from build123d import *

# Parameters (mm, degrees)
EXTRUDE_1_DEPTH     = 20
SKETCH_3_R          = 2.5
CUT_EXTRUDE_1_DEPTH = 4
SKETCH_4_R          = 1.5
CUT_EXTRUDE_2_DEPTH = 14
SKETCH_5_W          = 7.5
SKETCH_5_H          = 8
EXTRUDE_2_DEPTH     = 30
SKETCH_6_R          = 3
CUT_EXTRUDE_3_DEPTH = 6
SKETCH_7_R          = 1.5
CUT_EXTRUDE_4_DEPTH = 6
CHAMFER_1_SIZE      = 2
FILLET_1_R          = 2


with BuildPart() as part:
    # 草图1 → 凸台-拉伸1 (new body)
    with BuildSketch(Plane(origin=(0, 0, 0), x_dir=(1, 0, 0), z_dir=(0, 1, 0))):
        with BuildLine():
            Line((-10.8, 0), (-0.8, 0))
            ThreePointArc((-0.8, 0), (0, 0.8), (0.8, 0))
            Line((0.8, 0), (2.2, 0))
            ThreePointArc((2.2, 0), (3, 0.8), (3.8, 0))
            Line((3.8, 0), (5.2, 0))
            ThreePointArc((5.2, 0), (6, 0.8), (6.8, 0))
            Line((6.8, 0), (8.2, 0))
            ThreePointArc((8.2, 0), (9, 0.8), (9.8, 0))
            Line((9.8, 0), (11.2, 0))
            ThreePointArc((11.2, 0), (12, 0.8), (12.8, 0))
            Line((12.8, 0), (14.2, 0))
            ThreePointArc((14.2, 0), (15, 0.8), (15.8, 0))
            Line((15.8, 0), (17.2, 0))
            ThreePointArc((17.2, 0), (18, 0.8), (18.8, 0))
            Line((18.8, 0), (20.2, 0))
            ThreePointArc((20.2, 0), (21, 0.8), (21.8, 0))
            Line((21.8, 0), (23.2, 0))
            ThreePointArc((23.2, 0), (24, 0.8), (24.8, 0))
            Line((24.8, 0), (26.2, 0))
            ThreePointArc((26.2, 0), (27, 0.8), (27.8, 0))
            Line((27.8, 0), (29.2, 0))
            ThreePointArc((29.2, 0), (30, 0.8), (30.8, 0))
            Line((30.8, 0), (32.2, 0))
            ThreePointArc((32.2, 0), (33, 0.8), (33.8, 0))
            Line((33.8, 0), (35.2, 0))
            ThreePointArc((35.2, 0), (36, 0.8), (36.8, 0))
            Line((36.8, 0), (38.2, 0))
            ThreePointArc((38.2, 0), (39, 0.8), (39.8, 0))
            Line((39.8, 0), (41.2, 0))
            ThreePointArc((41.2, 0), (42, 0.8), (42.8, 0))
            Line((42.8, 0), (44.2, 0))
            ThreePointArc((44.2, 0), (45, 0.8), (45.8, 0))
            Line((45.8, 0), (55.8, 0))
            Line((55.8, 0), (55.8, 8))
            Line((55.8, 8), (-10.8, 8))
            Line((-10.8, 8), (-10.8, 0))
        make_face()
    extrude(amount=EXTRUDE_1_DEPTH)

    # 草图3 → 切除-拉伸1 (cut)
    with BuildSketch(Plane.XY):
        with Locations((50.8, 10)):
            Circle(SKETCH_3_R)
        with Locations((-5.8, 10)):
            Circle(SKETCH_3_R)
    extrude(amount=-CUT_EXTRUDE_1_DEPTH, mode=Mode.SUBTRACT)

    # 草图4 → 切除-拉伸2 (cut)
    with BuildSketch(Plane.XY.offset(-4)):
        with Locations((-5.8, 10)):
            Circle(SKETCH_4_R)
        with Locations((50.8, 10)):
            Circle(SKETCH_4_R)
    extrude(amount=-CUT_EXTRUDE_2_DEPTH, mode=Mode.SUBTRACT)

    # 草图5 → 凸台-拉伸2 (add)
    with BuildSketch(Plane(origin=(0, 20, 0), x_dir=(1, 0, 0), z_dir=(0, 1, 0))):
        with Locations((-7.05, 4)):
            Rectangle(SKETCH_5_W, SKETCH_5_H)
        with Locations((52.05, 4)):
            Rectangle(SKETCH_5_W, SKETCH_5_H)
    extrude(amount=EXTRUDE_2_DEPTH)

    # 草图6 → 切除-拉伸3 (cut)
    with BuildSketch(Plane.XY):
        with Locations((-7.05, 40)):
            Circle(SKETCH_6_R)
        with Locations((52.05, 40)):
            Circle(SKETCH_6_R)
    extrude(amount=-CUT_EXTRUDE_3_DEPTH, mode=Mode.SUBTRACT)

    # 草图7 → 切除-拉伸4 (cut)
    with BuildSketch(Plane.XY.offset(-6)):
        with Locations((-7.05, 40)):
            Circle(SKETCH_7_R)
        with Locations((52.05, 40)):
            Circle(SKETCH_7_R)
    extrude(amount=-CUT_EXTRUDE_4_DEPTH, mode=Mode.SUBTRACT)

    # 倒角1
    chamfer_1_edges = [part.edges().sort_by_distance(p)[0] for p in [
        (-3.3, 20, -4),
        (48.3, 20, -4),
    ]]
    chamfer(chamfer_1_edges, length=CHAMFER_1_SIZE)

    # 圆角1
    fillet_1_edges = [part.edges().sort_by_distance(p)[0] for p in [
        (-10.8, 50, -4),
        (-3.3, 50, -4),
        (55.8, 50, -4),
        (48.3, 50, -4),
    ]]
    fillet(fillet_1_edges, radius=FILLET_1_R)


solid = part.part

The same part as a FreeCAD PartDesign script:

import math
import FreeCAD as App
import Part
import Sketcher

V = App.Vector


def edges_at(feature, points):
    """Names of the edges that pass closest to the given points."""
    edges = feature.Shape.Edges
    near = lambda p: min(range(len(edges)), key=lambda i: edges[i].distToShape(Part.Vertex(*p))[0])
    return sorted({f"Edge{near(p) + 1}" for p in points})

doc = App.newDocument("Part")
body = doc.addObject("PartDesign::Body", "Body")

sketch1 = body.newObject("Sketcher::SketchObject", "Sketch")
sketch1.AttachmentSupport = (doc.getObject("XZ_Plane"), [""])
sketch1.MapMode = "FlatFace"
sketch1.addGeometry(Part.LineSegment(V(-10.8, 0, 0), V(-0.8, 0, 0)), False)
sketch1.addGeometry(Part.ArcOfCircle(Part.Circle(V(0, 0, 0), V(0, 0, 1), 0.8), math.radians(180), math.radians(360)), False)
sketch1.addGeometry(Part.LineSegment(V(0.8, 0, 0), V(2.2, 0, 0)), False)
sketch1.addGeometry(Part.ArcOfCircle(Part.Circle(V(3, 0, 0), V(0, 0, 1), 0.8), math.radians(180), math.radians(360)), False)
sketch1.addGeometry(Part.LineSegment(V(3.8, 0, 0), V(5.2, 0, 0)), False)
sketch1.addGeometry(Part.ArcOfCircle(Part.Circle(V(6, 0, 0), V(0, 0, 1), 0.8), math.radians(180), math.radians(360)), False)
sketch1.addGeometry(Part.LineSegment(V(6.8, 0, 0), V(8.2, 0, 0)), False)
sketch1.addGeometry(Part.ArcOfCircle(Part.Circle(V(9, 0, 0), V(0, 0, 1), 0.8), math.radians(180), math.radians(360)), False)
sketch1.addGeometry(Part.LineSegment(V(9.8, 0, 0), V(11.2, 0, 0)), False)
sketch1.addGeometry(Part.ArcOfCircle(Part.Circle(V(12, 0, 0), V(0, 0, 1), 0.8), math.radians(180), math.radians(360)), False)
sketch1.addGeometry(Part.LineSegment(V(12.8, 0, 0), V(14.2, 0, 0)), False)
sketch1.addGeometry(Part.ArcOfCircle(Part.Circle(V(15, 0, 0), V(0, 0, 1), 0.8), math.radians(180), math.radians(360)), False)
sketch1.addGeometry(Part.LineSegment(V(15.8, 0, 0), V(17.2, 0, 0)), False)
sketch1.addGeometry(Part.ArcOfCircle(Part.Circle(V(18, 0, 0), V(0, 0, 1), 0.8), math.radians(180), math.radians(360)), False)
sketch1.addGeometry(Part.LineSegment(V(18.8, 0, 0), V(20.2, 0, 0)), False)
sketch1.addGeometry(Part.ArcOfCircle(Part.Circle(V(21, 0, 0), V(0, 0, 1), 0.8), math.radians(180), math.radians(360)), False)
sketch1.addGeometry(Part.LineSegment(V(21.8, 0, 0), V(23.2, 0, 0)), False)
sketch1.addGeometry(Part.ArcOfCircle(Part.Circle(V(24, 0, 0), V(0, 0, 1), 0.8), math.radians(180), math.radians(360)), False)
sketch1.addGeometry(Part.LineSegment(V(24.8, 0, 0), V(26.2, 0, 0)), False)
sketch1.addGeometry(Part.ArcOfCircle(Part.Circle(V(27, 0, 0), V(0, 0, 1), 0.8), math.radians(180), math.radians(360)), False)
sketch1.addGeometry(Part.LineSegment(V(27.8, 0, 0), V(29.2, 0, 0)), False)
sketch1.addGeometry(Part.ArcOfCircle(Part.Circle(V(30, 0, 0), V(0, 0, 1), 0.8), math.radians(180), math.radians(360)), False)
sketch1.addGeometry(Part.LineSegment(V(30.8, 0, 0), V(32.2, 0, 0)), False)
sketch1.addGeometry(Part.ArcOfCircle(Part.Circle(V(33, 0, 0), V(0, 0, 1), 0.8), math.radians(180), math.radians(360)), False)
sketch1.addGeometry(Part.LineSegment(V(33.8, 0, 0), V(35.2, 0, 0)), False)
sketch1.addGeometry(Part.ArcOfCircle(Part.Circle(V(36, 0, 0), V(0, 0, 1), 0.8), math.radians(180), math.radians(360)), False)
sketch1.addGeometry(Part.LineSegment(V(36.8, 0, 0), V(38.2, 0, 0)), False)
sketch1.addGeometry(Part.ArcOfCircle(Part.Circle(V(39, 0, 0), V(0, 0, 1), 0.8), math.radians(180), math.radians(360)), False)
sketch1.addGeometry(Part.LineSegment(V(39.8, 0, 0), V(41.2, 0, 0)), False)
sketch1.addGeometry(Part.ArcOfCircle(Part.Circle(V(42, 0, 0), V(0, 0, 1), 0.8), math.radians(180), math.radians(360)), False)
sketch1.addGeometry(Part.LineSegment(V(42.8, 0, 0), V(44.2, 0, 0)), False)
sketch1.addGeometry(Part.ArcOfCircle(Part.Circle(V(45, 0, 0), V(0, 0, 1), 0.8), math.radians(180), math.radians(360)), False)
sketch1.addGeometry(Part.LineSegment(V(45.8, 0, 0), V(55.8, 0, 0)), False)
sketch1.addGeometry(Part.LineSegment(V(55.8, 0, 0), V(55.8, -8, 0)), False)
sketch1.addGeometry(Part.LineSegment(V(55.8, -8, 0), V(-10.8, -8, 0)), False)
sketch1.addGeometry(Part.LineSegment(V(-10.8, -8, 0), V(-10.8, 0, 0)), False)
sketch1.addConstraint(Sketcher.Constraint("Coincident", 0, 2, 1, 1))
sketch1.addConstraint(Sketcher.Constraint("Coincident", 1, 2, 2, 1))
sketch1.addConstraint(Sketcher.Constraint("Coincident", 2, 2, 3, 1))
sketch1.addConstraint(Sketcher.Constraint("Coincident", 3, 2, 4, 1))
sketch1.addConstraint(Sketcher.Constraint("Coincident", 4, 2, 5, 1))
sketch1.addConstraint(Sketcher.Constraint("Coincident", 5, 2, 6, 1))
sketch1.addConstraint(Sketcher.Constraint("Coincident", 6, 2, 7, 1))
sketch1.addConstraint(Sketcher.Constraint("Coincident", 7, 2, 8, 1))
sketch1.addConstraint(Sketcher.Constraint("Coincident", 8, 2, 9, 1))
sketch1.addConstraint(Sketcher.Constraint("Coincident", 9, 2, 10, 1))
sketch1.addConstraint(Sketcher.Constraint("Coincident", 10, 2, 11, 1))
sketch1.addConstraint(Sketcher.Constraint("Coincident", 11, 2, 12, 1))
sketch1.addConstraint(Sketcher.Constraint("Coincident", 12, 2, 13, 1))
sketch1.addConstraint(Sketcher.Constraint("Coincident", 13, 2, 14, 1))
sketch1.addConstraint(Sketcher.Constraint("Coincident", 14, 2, 15, 1))
sketch1.addConstraint(Sketcher.Constraint("Coincident", 15, 2, 16, 1))
sketch1.addConstraint(Sketcher.Constraint("Coincident", 16, 2, 17, 1))
sketch1.addConstraint(Sketcher.Constraint("Coincident", 17, 2, 18, 1))
sketch1.addConstraint(Sketcher.Constraint("Coincident", 18, 2, 19, 1))
sketch1.addConstraint(Sketcher.Constraint("Coincident", 19, 2, 20, 1))
sketch1.addConstraint(Sketcher.Constraint("Coincident", 20, 2, 21, 1))
sketch1.addConstraint(Sketcher.Constraint("Coincident", 21, 2, 22, 1))
sketch1.addConstraint(Sketcher.Constraint("Coincident", 22, 2, 23, 1))
sketch1.addConstraint(Sketcher.Constraint("Coincident", 23, 2, 24, 1))
sketch1.addConstraint(Sketcher.Constraint("Coincident", 24, 2, 25, 1))
sketch1.addConstraint(Sketcher.Constraint("Coincident", 25, 2, 26, 1))
sketch1.addConstraint(Sketcher.Constraint("Coincident", 26, 2, 27, 1))
sketch1.addConstraint(Sketcher.Constraint("Coincident", 27, 2, 28, 1))
sketch1.addConstraint(Sketcher.Constraint("Coincident", 28, 2, 29, 1))
sketch1.addConstraint(Sketcher.Constraint("Coincident", 29, 2, 30, 1))
sketch1.addConstraint(Sketcher.Constraint("Coincident", 30, 2, 31, 1))
sketch1.addConstraint(Sketcher.Constraint("Coincident", 31, 2, 32, 1))
sketch1.addConstraint(Sketcher.Constraint("Coincident", 32, 2, 33, 1))
sketch1.addConstraint(Sketcher.Constraint("Coincident", 33, 2, 34, 1))
sketch1.addConstraint(Sketcher.Constraint("Coincident", 34, 2, 35, 1))
sketch1.addConstraint(Sketcher.Constraint("Coincident", 35, 2, 0, 1))
sketch1.addConstraint(Sketcher.Constraint("Horizontal", 0))
sketch1.addConstraint(Sketcher.Constraint("Horizontal", 2))
sketch1.addConstraint(Sketcher.Constraint("Horizontal", 4))
sketch1.addConstraint(Sketcher.Constraint("Horizontal", 6))
sketch1.addConstraint(Sketcher.Constraint("Horizontal", 8))
sketch1.addConstraint(Sketcher.Constraint("Horizontal", 10))
sketch1.addConstraint(Sketcher.Constraint("Horizontal", 12))
sketch1.addConstraint(Sketcher.Constraint("Horizontal", 14))
sketch1.addConstraint(Sketcher.Constraint("Horizontal", 16))
sketch1.addConstraint(Sketcher.Constraint("Horizontal", 18))
sketch1.addConstraint(Sketcher.Constraint("Horizontal", 20))
sketch1.addConstraint(Sketcher.Constraint("Horizontal", 22))
sketch1.addConstraint(Sketcher.Constraint("Horizontal", 24))
sketch1.addConstraint(Sketcher.Constraint("Horizontal", 26))
sketch1.addConstraint(Sketcher.Constraint("Horizontal", 28))
sketch1.addConstraint(Sketcher.Constraint("Horizontal", 30))
sketch1.addConstraint(Sketcher.Constraint("Horizontal", 32))
sketch1.addConstraint(Sketcher.Constraint("Vertical", 33))
sketch1.addConstraint(Sketcher.Constraint("Horizontal", 34))
sketch1.addConstraint(Sketcher.Constraint("Vertical", 35))
sketch1.addConstraint(Sketcher.Constraint("Coincident", 1, 3, -1, 1))
sketch1.addConstraint(Sketcher.Constraint("Equal", 1, 3))
sketch1.addConstraint(Sketcher.Constraint("Equal", 3, 5))
sketch1.addConstraint(Sketcher.Constraint("Equal", 5, 7))
sketch1.addConstraint(Sketcher.Constraint("Equal", 7, 9))
sketch1.addConstraint(Sketcher.Constraint("Equal", 9, 11))
sketch1.addConstraint(Sketcher.Constraint("Equal", 11, 13))
sketch1.addConstraint(Sketcher.Constraint("Equal", 13, 15))
sketch1.addConstraint(Sketcher.Constraint("Equal", 15, 17))
sketch1.addConstraint(Sketcher.Constraint("Equal", 17, 19))
sketch1.addConstraint(Sketcher.Constraint("Equal", 19, 21))
sketch1.addConstraint(Sketcher.Constraint("Equal", 21, 23))
sketch1.addConstraint(Sketcher.Constraint("Equal", 23, 25))
sketch1.addConstraint(Sketcher.Constraint("Equal", 25, 27))
sketch1.addConstraint(Sketcher.Constraint("Equal", 27, 29))
sketch1.addConstraint(Sketcher.Constraint("Equal", 29, 31))
sketch1.addConstraint(Sketcher.Constraint("PointOnObject", 3, 3, -1))
sketch1.addConstraint(Sketcher.Constraint("PointOnObject", 5, 3, -1))
sketch1.addConstraint(Sketcher.Constraint("PointOnObject", 7, 3, -1))
sketch1.addConstraint(Sketcher.Constraint("PointOnObject", 9, 3, -1))
sketch1.addConstraint(Sketcher.Constraint("PointOnObject", 11, 3, -1))
sketch1.addConstraint(Sketcher.Constraint("PointOnObject", 13, 3, -1))
sketch1.addConstraint(Sketcher.Constraint("PointOnObject", 15, 3, -1))
sketch1.addConstraint(Sketcher.Constraint("PointOnObject", 17, 3, -1))
sketch1.addConstraint(Sketcher.Constraint("PointOnObject", 19, 3, -1))
sketch1.addConstraint(Sketcher.Constraint("PointOnObject", 21, 3, -1))
sketch1.addConstraint(Sketcher.Constraint("PointOnObject", 23, 3, -1))
sketch1.addConstraint(Sketcher.Constraint("PointOnObject", 25, 3, -1))
sketch1.addConstraint(Sketcher.Constraint("PointOnObject", 27, 3, -1))
sketch1.addConstraint(Sketcher.Constraint("PointOnObject", 29, 3, -1))
sketch1.addConstraint(Sketcher.Constraint("PointOnObject", 31, 3, -1))
sketch1.addConstraint(Sketcher.Constraint("PointOnObject", 0, 2, -1))
sketch1.addConstraint(Sketcher.Constraint("PointOnObject", 1, 2, -1))
sketch1.addConstraint(Sketcher.Constraint("PointOnObject", 3, 2, -1))
sketch1.addConstraint(Sketcher.Constraint("PointOnObject", 5, 2, -1))
sketch1.addConstraint(Sketcher.Constraint("PointOnObject", 7, 2, -1))
sketch1.addConstraint(Sketcher.Constraint("PointOnObject", 9, 2, -1))
sketch1.addConstraint(Sketcher.Constraint("PointOnObject", 11, 2, -1))
sketch1.addConstraint(Sketcher.Constraint("PointOnObject", 13, 2, -1))
sketch1.addConstraint(Sketcher.Constraint("PointOnObject", 15, 2, -1))
sketch1.addConstraint(Sketcher.Constraint("PointOnObject", 17, 2, -1))
sketch1.addConstraint(Sketcher.Constraint("PointOnObject", 19, 2, -1))
sketch1.addConstraint(Sketcher.Constraint("PointOnObject", 21, 2, -1))
sketch1.addConstraint(Sketcher.Constraint("PointOnObject", 23, 2, -1))
sketch1.addConstraint(Sketcher.Constraint("PointOnObject", 25, 2, -1))
sketch1.addConstraint(Sketcher.Constraint("PointOnObject", 27, 2, -1))
sketch1.addConstraint(Sketcher.Constraint("PointOnObject", 29, 2, -1))
sketch1.addConstraint(Sketcher.Constraint("PointOnObject", 31, 2, -1))
sketch1.addConstraint(Sketcher.Constraint("Equal", 2, 4))
sketch1.addConstraint(Sketcher.Constraint("Equal", 4, 6))
sketch1.addConstraint(Sketcher.Constraint("Equal", 6, 8))
sketch1.addConstraint(Sketcher.Constraint("Equal", 8, 10))
sketch1.addConstraint(Sketcher.Constraint("Equal", 10, 12))
sketch1.addConstraint(Sketcher.Constraint("Equal", 12, 14))
sketch1.addConstraint(Sketcher.Constraint("Equal", 14, 16))
sketch1.addConstraint(Sketcher.Constraint("Equal", 16, 18))
sketch1.addConstraint(Sketcher.Constraint("Equal", 18, 20))
sketch1.addConstraint(Sketcher.Constraint("Equal", 20, 22))
sketch1.addConstraint(Sketcher.Constraint("Equal", 22, 24))
sketch1.addConstraint(Sketcher.Constraint("Equal", 24, 26))
sketch1.addConstraint(Sketcher.Constraint("Equal", 26, 28))
sketch1.addConstraint(Sketcher.Constraint("Equal", 28, 30))
sketch1.addConstraint(Sketcher.Constraint("Equal", 0, 32))
sketch1.addConstraint(Sketcher.Constraint("Radius", 1, 0.8))
sketch1.addConstraint(Sketcher.Constraint("DistanceX", 0, 1, 0, 2, 10.0))
sketch1.addConstraint(Sketcher.Constraint("DistanceY", 33, 2, 33, 1, 8.0))
sketch1.addConstraint(Sketcher.Constraint("DistanceX", 2, 1, 2, 2, 1.4))
pad1 = body.newObject("PartDesign::Pad", "Pad")
pad1.Profile = sketch1
pad1.Length = 20
pad1.Reversed = True

sketch2 = body.newObject("Sketcher::SketchObject", "Sketch001")
sketch2.AttachmentSupport = (doc.getObject("XY_Plane"), [""])
sketch2.MapMode = "FlatFace"
sketch2.addGeometry(Part.Circle(V(50.8, 10, 0), V(0, 0, 1), 2.5), False)
sketch2.addGeometry(Part.Circle(V(-5.8, 10, 0), V(0, 0, 1), 2.5), False)
sketch2.addConstraint(Sketcher.Constraint("Equal", 0, 1))
sketch2.addConstraint(Sketcher.Constraint("Horizontal", 0, 3, 1, 3))
sketch2.addConstraint(Sketcher.Constraint("Diameter", 0, 5.0))
sketch2.addConstraint(Sketcher.Constraint("DistanceY", -1, 1, 0, 3, 10.0))
sketch2.addConstraint(Sketcher.Constraint("DistanceX", -1, 1, 0, 3, 50.8))
sketch2.addConstraint(Sketcher.Constraint("DistanceX", 1, 3, -1, 1, 5.8))
pocket1 = body.newObject("PartDesign::Pocket", "Pocket")
pocket1.Profile = sketch2
pocket1.Length = 4

sketch3 = body.newObject("Sketcher::SketchObject", "Sketch002")
sketch3.AttachmentSupport = (doc.getObject("XY_Plane"), [""])
sketch3.MapMode = "FlatFace"
sketch3.AttachmentOffset = App.Placement(V(0, 0, -4), App.Rotation())
sketch3.addGeometry(Part.Circle(V(-5.8, 10, 0), V(0, 0, 1), 1.5), False)
sketch3.addGeometry(Part.Circle(V(50.8, 10, 0), V(0, 0, 1), 1.5), False)
sketch3.addConstraint(Sketcher.Constraint("Equal", 0, 1))
sketch3.addConstraint(Sketcher.Constraint("Horizontal", 0, 3, 1, 3))
sketch3.addConstraint(Sketcher.Constraint("Diameter", 0, 3.0))
sketch3.addConstraint(Sketcher.Constraint("DistanceY", -1, 1, 0, 3, 10.0))
sketch3.addConstraint(Sketcher.Constraint("DistanceX", 0, 3, -1, 1, 5.8))
sketch3.addConstraint(Sketcher.Constraint("DistanceX", -1, 1, 1, 3, 50.8))
pocket2 = body.newObject("PartDesign::Pocket", "Pocket001")
pocket2.Profile = sketch3
pocket2.Length = 14

sketch4 = body.newObject("Sketcher::SketchObject", "Sketch003")
sketch4.AttachmentSupport = (doc.getObject("XZ_Plane"), [""])
sketch4.MapMode = "FlatFace"
sketch4.AttachmentOffset = App.Placement(V(0, 0, -20), App.Rotation())
sketch4.addGeometry(Part.LineSegment(V(-11, -8, 0), V(-11, 0, 0)), False)
sketch4.addGeometry(Part.LineSegment(V(-11, 0, 0), V(-3, 0, 0)), False)
sketch4.addGeometry(Part.LineSegment(V(-3, 0, 0), V(-3, -8, 0)), False)
sketch4.addGeometry(Part.LineSegment(V(-3, -8, 0), V(-11, -8, 0)), False)
sketch4.addGeometry(Part.LineSegment(V(48, -8, 0), V(48, 0, 0)), False)
sketch4.addGeometry(Part.LineSegment(V(48, 0, 0), V(56, 0, 0)), False)
sketch4.addGeometry(Part.LineSegment(V(56, 0, 0), V(56, -8, 0)), False)
sketch4.addGeometry(Part.LineSegment(V(56, -8, 0), V(48, -8, 0)), False)
sketch4.addConstraint(Sketcher.Constraint("Coincident", 0, 2, 1, 1))
sketch4.addConstraint(Sketcher.Constraint("Coincident", 1, 2, 2, 1))
sketch4.addConstraint(Sketcher.Constraint("Coincident", 2, 2, 3, 1))
sketch4.addConstraint(Sketcher.Constraint("Coincident", 3, 2, 0, 1))
sketch4.addConstraint(Sketcher.Constraint("Coincident", 4, 2, 5, 1))
sketch4.addConstraint(Sketcher.Constraint("Coincident", 5, 2, 6, 1))
sketch4.addConstraint(Sketcher.Constraint("Coincident", 6, 2, 7, 1))
sketch4.addConstraint(Sketcher.Constraint("Coincident", 7, 2, 4, 1))
sketch4.addConstraint(Sketcher.Constraint("Vertical", 0))
sketch4.addConstraint(Sketcher.Constraint("Horizontal", 1))
sketch4.addConstraint(Sketcher.Constraint("Vertical", 2))
sketch4.addConstraint(Sketcher.Constraint("Horizontal", 3))
sketch4.addConstraint(Sketcher.Constraint("Vertical", 4))
sketch4.addConstraint(Sketcher.Constraint("Horizontal", 5))
sketch4.addConstraint(Sketcher.Constraint("Vertical", 6))
sketch4.addConstraint(Sketcher.Constraint("Horizontal", 7))
sketch4.addConstraint(Sketcher.Constraint("PointOnObject", 0, 2, -1))
sketch4.addConstraint(Sketcher.Constraint("PointOnObject", 4, 2, -1))
sketch4.addConstraint(Sketcher.Constraint("Horizontal", 3, 2, 6, 2))
sketch4.addConstraint(Sketcher.Constraint("Equal", 3, 5))
sketch4.addConstraint(Sketcher.Constraint("DistanceY", 0, 1, 0, 2, 8.0))
sketch4.addConstraint(Sketcher.Constraint("DistanceX", 1, 1, 1, 2, 7.5))
sketch4.addConstraint(Sketcher.Constraint("DistanceX", 0, 2, -1, 1, 10.8))
sketch4.addConstraint(Sketcher.Constraint("DistanceX", -1, 1, 4, 2, 48.3))
pad2 = body.newObject("PartDesign::Pad", "Pad001")
pad2.Profile = sketch4
pad2.Length = 30
pad2.Reversed = True

sketch5 = body.newObject("Sketcher::SketchObject", "Sketch004")
sketch5.AttachmentSupport = (doc.getObject("XY_Plane"), [""])
sketch5.MapMode = "FlatFace"
sketch5.addGeometry(Part.Circle(V(-7, 40, 0), V(0, 0, 1), 3), False)
sketch5.addGeometry(Part.Circle(V(52, 40, 0), V(0, 0, 1), 3), False)
sketch5.addConstraint(Sketcher.Constraint("Equal", 0, 1))
sketch5.addConstraint(Sketcher.Constraint("Horizontal", 0, 3, 1, 3))
sketch5.addConstraint(Sketcher.Constraint("Diameter", 0, 6.0))
sketch5.addConstraint(Sketcher.Constraint("DistanceY", -1, 1, 0, 3, 40.0))
sketch5.addConstraint(Sketcher.Constraint("DistanceX", 0, 3, 1, 3, 59.1))
sketch5.addConstraint(Sketcher.Constraint("DistanceX", 0, 3, -1, 1, 7.05))
pocket3 = body.newObject("PartDesign::Pocket", "Pocket002")
pocket3.Profile = sketch5
pocket3.Length = 6

sketch6 = body.newObject("Sketcher::SketchObject", "Sketch005")
sketch6.AttachmentSupport = (doc.getObject("XY_Plane"), [""])
sketch6.MapMode = "FlatFace"
sketch6.AttachmentOffset = App.Placement(V(0, 0, -6), App.Rotation())
sketch6.addGeometry(Part.Circle(V(-7, 40, 0), V(0, 0, 1), 1.5), False)
sketch6.addGeometry(Part.Circle(V(52, 40, 0), V(0, 0, 1), 1.5), False)
sketch6.addConstraint(Sketcher.Constraint("Equal", 0, 1))
sketch6.addConstraint(Sketcher.Constraint("Horizontal", 0, 3, 1, 3))
sketch6.addConstraint(Sketcher.Constraint("Diameter", 0, 3.0))
sketch6.addConstraint(Sketcher.Constraint("DistanceY", -1, 1, 0, 3, 40.0))
sketch6.addConstraint(Sketcher.Constraint("DistanceX", 0, 3, 1, 3, 59.1))
sketch6.addConstraint(Sketcher.Constraint("DistanceX", 0, 3, -1, 1, 7.05))
pocket4 = body.newObject("PartDesign::Pocket", "Pocket003")
pocket4.Profile = sketch6
pocket4.Length = 6
doc.recompute()

chamfer = body.newObject("PartDesign::Chamfer", "Chamfer")
chamfer.Base = (pocket4, edges_at(pocket4, [(-3.3, 20, -4), (48.3, 20, -4)]))
chamfer.Size = 2
doc.recompute()

fillet = body.newObject("PartDesign::Fillet", "Fillet")
fillet.Base = (chamfer, edges_at(chamfer, [
    (-10.8, 50, -4),
    (-3.3, 50, -4),
    (55.8, 50, -4),
    (48.3, 50, -4),
]))
fillet.Radius = 2

doc.recompute()
